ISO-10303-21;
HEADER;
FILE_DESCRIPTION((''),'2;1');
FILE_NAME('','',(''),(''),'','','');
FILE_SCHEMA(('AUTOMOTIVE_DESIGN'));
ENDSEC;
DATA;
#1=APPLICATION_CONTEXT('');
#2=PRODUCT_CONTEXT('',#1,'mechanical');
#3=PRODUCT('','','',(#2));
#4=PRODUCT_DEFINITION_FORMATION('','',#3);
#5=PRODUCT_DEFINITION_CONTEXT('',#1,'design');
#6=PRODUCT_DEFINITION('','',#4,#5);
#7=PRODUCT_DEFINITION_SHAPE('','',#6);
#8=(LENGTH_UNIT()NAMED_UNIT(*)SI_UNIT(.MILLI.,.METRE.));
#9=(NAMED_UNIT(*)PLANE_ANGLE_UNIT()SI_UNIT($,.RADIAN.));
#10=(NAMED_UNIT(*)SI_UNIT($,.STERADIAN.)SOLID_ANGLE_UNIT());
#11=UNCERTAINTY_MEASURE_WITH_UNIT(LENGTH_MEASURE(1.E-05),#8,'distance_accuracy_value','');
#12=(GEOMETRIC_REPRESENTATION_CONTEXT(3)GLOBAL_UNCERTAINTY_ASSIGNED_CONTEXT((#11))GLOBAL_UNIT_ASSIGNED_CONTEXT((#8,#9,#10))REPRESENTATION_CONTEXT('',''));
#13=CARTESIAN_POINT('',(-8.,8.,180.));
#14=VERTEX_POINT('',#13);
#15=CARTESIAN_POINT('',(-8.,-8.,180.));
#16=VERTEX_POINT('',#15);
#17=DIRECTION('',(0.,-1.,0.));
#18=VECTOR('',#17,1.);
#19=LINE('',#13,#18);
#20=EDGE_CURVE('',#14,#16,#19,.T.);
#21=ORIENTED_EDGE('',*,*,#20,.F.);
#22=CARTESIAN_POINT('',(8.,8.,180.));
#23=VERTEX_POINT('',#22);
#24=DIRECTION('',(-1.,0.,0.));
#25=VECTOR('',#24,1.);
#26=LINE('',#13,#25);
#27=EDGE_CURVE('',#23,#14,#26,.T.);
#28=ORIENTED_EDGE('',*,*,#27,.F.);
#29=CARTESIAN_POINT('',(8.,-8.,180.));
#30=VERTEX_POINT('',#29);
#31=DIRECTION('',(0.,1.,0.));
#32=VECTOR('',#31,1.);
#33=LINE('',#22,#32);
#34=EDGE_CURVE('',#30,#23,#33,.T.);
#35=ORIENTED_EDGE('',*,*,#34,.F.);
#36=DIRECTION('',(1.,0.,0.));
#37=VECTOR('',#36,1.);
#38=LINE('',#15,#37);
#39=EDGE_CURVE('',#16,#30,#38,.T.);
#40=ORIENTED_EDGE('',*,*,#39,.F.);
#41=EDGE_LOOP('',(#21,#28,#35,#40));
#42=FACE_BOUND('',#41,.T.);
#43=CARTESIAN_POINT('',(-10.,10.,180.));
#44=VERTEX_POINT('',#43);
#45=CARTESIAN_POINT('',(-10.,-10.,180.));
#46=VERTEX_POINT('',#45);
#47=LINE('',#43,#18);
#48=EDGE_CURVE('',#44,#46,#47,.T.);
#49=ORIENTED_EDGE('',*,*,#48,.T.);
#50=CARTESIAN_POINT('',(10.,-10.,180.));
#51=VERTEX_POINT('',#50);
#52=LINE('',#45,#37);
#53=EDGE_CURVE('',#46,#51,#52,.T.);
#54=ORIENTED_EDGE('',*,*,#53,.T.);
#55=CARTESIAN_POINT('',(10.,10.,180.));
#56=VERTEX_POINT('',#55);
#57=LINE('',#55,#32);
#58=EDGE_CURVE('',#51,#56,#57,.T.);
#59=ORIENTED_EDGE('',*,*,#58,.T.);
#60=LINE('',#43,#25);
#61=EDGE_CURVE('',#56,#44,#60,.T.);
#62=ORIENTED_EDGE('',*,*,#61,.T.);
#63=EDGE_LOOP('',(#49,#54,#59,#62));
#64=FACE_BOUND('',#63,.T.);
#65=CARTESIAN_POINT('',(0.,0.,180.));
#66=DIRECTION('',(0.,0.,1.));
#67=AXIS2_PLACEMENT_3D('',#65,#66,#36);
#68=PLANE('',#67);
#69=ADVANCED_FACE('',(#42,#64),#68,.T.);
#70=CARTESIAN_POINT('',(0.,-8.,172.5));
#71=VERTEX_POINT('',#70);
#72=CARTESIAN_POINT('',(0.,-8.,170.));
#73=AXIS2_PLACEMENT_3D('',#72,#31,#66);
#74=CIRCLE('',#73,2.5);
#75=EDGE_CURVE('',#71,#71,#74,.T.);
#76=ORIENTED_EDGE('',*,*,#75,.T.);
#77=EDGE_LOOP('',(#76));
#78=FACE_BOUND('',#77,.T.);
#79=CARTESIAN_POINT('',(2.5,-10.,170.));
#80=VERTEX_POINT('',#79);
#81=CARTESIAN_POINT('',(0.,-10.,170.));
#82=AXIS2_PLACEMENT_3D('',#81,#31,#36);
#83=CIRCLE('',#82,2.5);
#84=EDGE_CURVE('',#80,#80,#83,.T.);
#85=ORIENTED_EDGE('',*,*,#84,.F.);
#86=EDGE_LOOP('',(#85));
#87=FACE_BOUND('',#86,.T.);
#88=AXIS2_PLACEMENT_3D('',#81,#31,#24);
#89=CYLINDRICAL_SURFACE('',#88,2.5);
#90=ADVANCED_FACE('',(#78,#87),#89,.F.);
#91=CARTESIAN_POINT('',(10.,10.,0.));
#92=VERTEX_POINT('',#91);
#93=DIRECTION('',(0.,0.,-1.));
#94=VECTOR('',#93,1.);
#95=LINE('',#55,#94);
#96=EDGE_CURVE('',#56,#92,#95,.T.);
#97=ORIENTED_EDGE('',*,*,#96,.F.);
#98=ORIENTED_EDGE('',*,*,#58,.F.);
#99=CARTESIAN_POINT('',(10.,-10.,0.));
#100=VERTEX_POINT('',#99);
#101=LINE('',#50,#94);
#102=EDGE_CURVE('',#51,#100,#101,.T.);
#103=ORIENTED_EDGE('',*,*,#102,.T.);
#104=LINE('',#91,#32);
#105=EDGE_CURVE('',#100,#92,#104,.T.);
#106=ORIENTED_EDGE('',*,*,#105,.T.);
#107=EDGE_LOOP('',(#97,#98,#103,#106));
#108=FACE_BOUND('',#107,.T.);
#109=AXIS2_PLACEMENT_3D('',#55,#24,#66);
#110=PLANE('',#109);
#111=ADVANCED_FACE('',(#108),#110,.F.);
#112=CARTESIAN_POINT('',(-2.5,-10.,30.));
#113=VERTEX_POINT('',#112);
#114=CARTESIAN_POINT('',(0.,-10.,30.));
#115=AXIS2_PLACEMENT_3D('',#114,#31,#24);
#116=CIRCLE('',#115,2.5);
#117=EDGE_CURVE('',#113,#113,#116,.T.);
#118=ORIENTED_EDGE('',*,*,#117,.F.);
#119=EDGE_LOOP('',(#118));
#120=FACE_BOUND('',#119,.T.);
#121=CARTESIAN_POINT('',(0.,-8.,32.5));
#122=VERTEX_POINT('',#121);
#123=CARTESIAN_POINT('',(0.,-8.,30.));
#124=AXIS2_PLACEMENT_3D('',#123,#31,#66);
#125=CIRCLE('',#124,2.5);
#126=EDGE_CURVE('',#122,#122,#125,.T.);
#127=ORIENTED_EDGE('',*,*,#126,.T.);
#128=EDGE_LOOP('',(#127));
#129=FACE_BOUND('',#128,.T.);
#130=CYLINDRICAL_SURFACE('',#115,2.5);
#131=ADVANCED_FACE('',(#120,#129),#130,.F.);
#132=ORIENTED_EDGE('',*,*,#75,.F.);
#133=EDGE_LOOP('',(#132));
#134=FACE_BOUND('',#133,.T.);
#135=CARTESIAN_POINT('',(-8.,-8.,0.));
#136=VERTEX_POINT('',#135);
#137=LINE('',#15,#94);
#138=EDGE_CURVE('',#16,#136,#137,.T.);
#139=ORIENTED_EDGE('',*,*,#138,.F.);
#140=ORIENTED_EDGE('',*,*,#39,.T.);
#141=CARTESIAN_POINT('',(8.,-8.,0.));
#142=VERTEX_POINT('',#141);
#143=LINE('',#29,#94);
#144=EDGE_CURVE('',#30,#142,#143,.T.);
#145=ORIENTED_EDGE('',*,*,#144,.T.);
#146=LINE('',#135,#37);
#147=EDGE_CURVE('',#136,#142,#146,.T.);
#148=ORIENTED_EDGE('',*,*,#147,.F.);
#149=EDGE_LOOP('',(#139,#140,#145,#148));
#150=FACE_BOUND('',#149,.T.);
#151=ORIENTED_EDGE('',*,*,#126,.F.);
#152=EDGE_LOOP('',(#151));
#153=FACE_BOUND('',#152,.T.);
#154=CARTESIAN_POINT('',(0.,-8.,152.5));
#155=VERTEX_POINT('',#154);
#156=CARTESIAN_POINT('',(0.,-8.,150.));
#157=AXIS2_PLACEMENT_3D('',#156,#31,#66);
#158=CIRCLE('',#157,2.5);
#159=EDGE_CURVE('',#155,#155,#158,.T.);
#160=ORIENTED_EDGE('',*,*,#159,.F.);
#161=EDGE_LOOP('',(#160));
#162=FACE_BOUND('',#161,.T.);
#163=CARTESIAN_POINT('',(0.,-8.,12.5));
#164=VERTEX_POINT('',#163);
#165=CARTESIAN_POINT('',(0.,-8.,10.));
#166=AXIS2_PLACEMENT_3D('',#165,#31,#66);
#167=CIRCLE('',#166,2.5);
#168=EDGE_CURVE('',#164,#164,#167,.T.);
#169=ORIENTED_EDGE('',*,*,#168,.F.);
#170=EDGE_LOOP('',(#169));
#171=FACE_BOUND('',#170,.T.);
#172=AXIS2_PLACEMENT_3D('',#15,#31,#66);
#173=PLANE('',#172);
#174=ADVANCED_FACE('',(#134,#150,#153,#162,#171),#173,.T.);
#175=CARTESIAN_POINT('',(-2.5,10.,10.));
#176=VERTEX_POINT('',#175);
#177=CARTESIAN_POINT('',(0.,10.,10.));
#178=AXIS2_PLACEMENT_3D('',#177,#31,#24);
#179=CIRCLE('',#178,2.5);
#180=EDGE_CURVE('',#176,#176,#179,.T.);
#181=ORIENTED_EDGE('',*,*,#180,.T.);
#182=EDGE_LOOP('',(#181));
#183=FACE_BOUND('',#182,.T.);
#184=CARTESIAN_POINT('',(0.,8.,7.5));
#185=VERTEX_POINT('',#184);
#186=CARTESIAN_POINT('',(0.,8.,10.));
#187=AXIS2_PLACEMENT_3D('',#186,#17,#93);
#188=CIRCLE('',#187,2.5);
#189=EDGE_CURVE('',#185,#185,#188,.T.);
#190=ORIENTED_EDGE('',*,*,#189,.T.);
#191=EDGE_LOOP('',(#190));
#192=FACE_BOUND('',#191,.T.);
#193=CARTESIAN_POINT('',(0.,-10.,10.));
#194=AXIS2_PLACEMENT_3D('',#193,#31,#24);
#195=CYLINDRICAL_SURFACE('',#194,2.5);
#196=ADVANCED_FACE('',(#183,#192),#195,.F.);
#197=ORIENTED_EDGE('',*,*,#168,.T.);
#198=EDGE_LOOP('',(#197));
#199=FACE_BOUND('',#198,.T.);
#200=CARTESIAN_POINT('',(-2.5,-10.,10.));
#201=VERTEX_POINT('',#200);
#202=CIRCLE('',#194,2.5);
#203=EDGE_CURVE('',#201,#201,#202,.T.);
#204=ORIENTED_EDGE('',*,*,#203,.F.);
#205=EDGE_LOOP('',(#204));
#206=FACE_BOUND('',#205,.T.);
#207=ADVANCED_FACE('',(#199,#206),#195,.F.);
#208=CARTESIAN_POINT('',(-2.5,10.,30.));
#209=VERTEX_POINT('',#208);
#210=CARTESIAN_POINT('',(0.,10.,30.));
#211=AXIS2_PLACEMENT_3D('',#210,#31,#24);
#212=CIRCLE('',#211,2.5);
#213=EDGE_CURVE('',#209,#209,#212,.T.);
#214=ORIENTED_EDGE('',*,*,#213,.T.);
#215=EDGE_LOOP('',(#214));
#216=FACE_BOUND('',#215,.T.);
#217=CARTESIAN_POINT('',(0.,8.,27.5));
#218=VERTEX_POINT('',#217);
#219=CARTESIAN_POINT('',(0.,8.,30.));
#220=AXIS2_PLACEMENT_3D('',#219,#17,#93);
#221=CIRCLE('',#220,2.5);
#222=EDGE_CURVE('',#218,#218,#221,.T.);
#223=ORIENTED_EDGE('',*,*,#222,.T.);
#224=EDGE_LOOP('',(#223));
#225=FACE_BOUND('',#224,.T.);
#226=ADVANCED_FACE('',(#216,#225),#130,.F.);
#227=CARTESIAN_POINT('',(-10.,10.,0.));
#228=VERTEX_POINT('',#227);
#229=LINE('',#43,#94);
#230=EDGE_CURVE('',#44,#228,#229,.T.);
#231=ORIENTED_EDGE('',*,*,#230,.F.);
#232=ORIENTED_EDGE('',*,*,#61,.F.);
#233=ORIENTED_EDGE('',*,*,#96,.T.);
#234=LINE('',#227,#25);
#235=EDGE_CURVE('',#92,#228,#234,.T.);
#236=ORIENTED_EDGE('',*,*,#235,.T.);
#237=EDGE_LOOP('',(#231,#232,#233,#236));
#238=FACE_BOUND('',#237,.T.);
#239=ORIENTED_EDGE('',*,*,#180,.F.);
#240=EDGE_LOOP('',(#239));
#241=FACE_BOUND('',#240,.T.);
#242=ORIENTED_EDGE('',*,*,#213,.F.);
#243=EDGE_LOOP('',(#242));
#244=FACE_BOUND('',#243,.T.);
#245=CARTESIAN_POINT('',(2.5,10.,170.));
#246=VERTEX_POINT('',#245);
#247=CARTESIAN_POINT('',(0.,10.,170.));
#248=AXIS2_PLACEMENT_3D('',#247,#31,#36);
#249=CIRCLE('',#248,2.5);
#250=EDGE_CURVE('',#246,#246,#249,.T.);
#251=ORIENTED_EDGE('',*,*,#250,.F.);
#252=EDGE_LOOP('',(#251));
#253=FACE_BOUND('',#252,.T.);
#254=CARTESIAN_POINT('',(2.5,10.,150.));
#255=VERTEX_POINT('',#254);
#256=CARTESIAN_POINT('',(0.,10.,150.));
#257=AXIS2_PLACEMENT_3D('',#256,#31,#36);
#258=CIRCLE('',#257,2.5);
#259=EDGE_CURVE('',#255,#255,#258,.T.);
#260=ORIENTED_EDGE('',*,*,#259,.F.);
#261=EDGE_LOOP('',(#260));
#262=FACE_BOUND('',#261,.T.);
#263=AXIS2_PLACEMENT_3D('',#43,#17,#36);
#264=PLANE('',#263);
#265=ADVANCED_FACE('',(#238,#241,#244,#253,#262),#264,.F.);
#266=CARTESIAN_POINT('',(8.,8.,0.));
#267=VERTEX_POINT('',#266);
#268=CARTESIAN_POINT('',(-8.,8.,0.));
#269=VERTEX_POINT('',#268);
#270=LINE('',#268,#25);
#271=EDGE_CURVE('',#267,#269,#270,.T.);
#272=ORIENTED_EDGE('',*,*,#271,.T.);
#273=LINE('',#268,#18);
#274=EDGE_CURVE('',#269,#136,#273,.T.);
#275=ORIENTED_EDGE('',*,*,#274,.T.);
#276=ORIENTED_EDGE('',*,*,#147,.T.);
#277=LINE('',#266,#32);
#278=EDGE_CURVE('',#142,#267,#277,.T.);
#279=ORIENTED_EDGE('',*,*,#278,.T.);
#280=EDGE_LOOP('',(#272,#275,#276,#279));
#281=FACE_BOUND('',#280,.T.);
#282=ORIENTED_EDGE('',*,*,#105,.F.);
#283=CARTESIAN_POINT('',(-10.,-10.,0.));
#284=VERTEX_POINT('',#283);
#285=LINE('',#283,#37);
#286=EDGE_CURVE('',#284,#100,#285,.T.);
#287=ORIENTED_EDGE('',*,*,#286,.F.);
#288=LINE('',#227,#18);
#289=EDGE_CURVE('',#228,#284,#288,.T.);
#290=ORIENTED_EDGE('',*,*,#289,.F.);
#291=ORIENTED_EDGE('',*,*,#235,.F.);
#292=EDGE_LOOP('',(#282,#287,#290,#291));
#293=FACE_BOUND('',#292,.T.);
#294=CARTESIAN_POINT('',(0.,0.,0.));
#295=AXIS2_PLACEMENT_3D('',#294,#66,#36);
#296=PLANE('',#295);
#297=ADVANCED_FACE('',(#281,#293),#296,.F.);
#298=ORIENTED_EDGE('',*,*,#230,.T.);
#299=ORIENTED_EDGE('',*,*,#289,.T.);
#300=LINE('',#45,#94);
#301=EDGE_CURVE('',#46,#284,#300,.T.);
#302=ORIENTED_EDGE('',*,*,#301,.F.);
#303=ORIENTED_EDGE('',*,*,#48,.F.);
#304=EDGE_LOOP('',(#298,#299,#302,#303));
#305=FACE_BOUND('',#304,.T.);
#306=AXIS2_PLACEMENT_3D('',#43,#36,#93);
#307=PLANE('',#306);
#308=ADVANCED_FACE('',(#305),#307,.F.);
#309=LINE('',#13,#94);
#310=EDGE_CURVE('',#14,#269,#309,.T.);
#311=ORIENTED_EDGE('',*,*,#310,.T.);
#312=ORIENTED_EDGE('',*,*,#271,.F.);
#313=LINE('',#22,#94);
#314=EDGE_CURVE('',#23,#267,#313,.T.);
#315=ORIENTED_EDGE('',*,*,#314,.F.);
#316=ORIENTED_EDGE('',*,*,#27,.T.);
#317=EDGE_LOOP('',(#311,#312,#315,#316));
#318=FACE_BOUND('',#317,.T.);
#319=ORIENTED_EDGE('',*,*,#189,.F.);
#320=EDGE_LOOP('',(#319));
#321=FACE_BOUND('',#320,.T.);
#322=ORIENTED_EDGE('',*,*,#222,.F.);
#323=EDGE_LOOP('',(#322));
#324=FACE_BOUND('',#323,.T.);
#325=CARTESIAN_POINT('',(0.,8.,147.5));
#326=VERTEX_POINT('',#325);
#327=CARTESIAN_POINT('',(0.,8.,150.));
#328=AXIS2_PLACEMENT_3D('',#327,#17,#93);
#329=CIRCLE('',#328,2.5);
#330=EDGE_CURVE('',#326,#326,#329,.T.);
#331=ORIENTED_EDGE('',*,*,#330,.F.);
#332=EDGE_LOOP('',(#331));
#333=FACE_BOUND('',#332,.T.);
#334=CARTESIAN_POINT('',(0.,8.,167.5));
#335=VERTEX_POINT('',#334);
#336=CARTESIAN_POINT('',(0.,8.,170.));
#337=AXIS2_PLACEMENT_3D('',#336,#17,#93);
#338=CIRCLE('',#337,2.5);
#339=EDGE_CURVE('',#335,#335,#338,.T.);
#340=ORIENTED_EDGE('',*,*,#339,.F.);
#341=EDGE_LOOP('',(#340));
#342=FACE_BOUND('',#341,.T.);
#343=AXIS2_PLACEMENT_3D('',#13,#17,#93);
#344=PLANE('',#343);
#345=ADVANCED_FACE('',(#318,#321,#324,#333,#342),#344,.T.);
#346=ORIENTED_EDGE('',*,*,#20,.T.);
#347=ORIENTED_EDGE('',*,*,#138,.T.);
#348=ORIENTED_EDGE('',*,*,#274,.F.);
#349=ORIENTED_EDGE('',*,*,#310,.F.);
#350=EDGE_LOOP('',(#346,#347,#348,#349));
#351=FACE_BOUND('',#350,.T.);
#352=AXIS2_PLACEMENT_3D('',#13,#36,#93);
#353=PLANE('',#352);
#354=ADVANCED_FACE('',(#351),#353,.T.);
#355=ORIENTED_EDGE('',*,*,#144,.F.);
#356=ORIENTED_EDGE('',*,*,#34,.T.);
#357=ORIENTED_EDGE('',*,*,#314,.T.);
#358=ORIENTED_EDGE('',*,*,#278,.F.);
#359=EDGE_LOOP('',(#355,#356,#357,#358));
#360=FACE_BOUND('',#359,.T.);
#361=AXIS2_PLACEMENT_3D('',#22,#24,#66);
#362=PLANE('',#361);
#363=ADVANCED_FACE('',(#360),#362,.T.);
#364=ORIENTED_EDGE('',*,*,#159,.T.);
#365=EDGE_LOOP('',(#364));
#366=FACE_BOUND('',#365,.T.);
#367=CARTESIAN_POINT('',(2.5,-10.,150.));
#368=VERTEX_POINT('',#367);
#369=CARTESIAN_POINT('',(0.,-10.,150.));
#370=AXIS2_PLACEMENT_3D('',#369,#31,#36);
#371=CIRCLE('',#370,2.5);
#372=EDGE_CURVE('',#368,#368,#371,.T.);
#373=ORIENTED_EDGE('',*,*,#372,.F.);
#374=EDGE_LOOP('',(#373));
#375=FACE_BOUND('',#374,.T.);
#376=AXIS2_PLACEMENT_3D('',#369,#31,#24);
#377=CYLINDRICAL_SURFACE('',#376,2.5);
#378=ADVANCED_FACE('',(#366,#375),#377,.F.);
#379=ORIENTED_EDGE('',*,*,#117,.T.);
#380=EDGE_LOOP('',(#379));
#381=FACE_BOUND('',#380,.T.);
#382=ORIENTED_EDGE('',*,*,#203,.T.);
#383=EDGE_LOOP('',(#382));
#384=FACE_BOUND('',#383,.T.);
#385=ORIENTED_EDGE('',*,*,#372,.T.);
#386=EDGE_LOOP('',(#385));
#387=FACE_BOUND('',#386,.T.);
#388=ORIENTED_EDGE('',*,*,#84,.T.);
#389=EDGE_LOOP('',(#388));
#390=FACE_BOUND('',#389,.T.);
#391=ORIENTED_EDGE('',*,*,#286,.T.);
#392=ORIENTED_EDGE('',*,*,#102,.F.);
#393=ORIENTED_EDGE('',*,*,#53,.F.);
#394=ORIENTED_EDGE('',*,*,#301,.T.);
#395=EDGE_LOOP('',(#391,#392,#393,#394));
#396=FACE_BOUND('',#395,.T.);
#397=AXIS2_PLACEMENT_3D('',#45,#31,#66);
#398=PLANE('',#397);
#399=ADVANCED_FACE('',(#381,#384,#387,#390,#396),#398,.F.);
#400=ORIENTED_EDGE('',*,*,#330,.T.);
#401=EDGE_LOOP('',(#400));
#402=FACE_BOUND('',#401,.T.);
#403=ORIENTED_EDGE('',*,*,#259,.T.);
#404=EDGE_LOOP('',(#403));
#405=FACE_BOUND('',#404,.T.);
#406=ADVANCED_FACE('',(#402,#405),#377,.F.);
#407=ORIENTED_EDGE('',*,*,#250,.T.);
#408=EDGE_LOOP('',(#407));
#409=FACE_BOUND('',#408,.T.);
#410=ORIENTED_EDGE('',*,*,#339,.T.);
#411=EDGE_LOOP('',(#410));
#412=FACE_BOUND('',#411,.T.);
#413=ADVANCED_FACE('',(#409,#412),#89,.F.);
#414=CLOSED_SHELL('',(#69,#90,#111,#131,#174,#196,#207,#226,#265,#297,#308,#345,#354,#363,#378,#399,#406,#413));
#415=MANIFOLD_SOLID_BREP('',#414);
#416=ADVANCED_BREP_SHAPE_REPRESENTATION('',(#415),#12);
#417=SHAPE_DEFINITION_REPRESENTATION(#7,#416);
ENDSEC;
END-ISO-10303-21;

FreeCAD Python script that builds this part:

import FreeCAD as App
import Part
import Sketcher

V = App.Vector
Q = App.Units.Quantity

doc = App.newDocument("Part")
body = doc.addObject("PartDesign::Body", "Body")

sketch1 = body.newObject("Sketcher::SketchObject", "Sketch")
sketch1.AttachmentSupport = (doc.getObject("XY_Plane"), [""])
sketch1.MapMode = "FlatFace"
sketch1.addGeometry([
    Part.LineSegment(V(-10, 10, 0), V(-10, -10, 0)),
    Part.LineSegment(V(-10, -10, 0), V(10, -10, 0)),
    Part.LineSegment(V(10, -10, 0), V(10, 10, 0)),
    Part.LineSegment(V(10, 10, 0), V(-10, 10, 0)),
    Part.LineSegment(V(8, -8, 0), V(-8, -8, 0)),
    Part.LineSegment(V(-8, -8, 0), V(-8, 8, 0)),
    Part.LineSegment(V(-8, 8, 0), V(8, 8, 0)),
    Part.LineSegment(V(8, 8, 0), V(8, -8, 0)),
], False)
sketch1.addConstraint([
    Sketcher.Constraint("Coincident", 0, 2, 1, 1),
    Sketcher.Constraint("Coincident", 1, 2, 2, 1),
    Sketcher.Constraint("Coincident", 2, 2, 3, 1),
    Sketcher.Constraint("Coincident", 3, 2, 0, 1),
    Sketcher.Constraint("Coincident", 4, 2, 5, 1),
    Sketcher.Constraint("Coincident", 5, 2, 6, 1),
    Sketcher.Constraint("Coincident", 6, 2, 7, 1),
    Sketcher.Constraint("Coincident", 7, 2, 4, 1),
    Sketcher.Constraint("Vertical", 0),
    Sketcher.Constraint("Horizontal", 1),
    Sketcher.Constraint("Vertical", 2),
    Sketcher.Constraint("Horizontal", 3),
    Sketcher.Constraint("Horizontal", 4),
    Sketcher.Constraint("Vertical", 5),
    Sketcher.Constraint("Horizontal", 6),
    Sketcher.Constraint("Vertical", 7),
    Sketcher.Constraint("Symmetric", 0, 2, 2, 2, -1, 1),
    Sketcher.Constraint("Symmetric", 4, 2, 6, 2, -1, 1),
    Sketcher.Constraint("Equal", 3, 0),
    Sketcher.Constraint("Equal", 6, 5),
    Sketcher.Constraint("DistanceX", 1, 1, 1, 2, Q("20 mm")),
    Sketcher.Constraint("DistanceX", 4, 2, 4, 1, Q("16 mm")),
])
pad1 = body.newObject("PartDesign::Pad", "Pad")
pad1.Profile = sketch1
pad1.Length = 180

sketch2 = body.newObject("Sketcher::SketchObject", "Sketch001")
sketch2.AttachmentSupport = (doc.getObject("XZ_Plane"), [""])
sketch2.MapMode = "FlatFace"
sketch2.AttachmentOffset = App.Placement(V(0, 0, -10), App.Rotation())
sketch2.addGeometry([
    Part.Circle(V(0, 10, 0), V(0, 0, 1), 2.5),
    Part.Circle(V(0, 30, 0), V(0, 0, 1), 2.5),
    Part.Circle(V(0, 150, 0), V(0, 0, 1), 2.5),
    Part.Circle(V(0, 170, 0), V(0, 0, 1), 2.5),
], False)
sketch2.addConstraint([
    Sketcher.Constraint("Equal", 0, 1),
    Sketcher.Constraint("Equal", 1, 2),
    Sketcher.Constraint("Equal", 2, 3),
    Sketcher.Constraint("PointOnObject", 0, 3, -2),
    Sketcher.Constraint("PointOnObject", 1, 3, -2),
    Sketcher.Constraint("PointOnObject", 2, 3, -2),
    Sketcher.Constraint("PointOnObject", 3, 3, -2),
    Sketcher.Constraint("Diameter", 0, Q("5 mm")),
    Sketcher.Constraint("DistanceY", -1, 1, 0, 3, Q("10 mm")),
    Sketcher.Constraint("DistanceY", -1, 1, 1, 3, Q("30 mm")),
    Sketcher.Constraint("DistanceY", -1, 1, 2, 3, Q("150 mm")),
    Sketcher.Constraint("DistanceY", -1, 1, 3, 3, Q("170 mm")),
])
pocket1 = body.newObject("PartDesign::Pocket", "Pocket")
pocket1.Profile = sketch2
pocket1.Type = "ThroughAll"
pocket1.Reversed = True

doc.recompute()
